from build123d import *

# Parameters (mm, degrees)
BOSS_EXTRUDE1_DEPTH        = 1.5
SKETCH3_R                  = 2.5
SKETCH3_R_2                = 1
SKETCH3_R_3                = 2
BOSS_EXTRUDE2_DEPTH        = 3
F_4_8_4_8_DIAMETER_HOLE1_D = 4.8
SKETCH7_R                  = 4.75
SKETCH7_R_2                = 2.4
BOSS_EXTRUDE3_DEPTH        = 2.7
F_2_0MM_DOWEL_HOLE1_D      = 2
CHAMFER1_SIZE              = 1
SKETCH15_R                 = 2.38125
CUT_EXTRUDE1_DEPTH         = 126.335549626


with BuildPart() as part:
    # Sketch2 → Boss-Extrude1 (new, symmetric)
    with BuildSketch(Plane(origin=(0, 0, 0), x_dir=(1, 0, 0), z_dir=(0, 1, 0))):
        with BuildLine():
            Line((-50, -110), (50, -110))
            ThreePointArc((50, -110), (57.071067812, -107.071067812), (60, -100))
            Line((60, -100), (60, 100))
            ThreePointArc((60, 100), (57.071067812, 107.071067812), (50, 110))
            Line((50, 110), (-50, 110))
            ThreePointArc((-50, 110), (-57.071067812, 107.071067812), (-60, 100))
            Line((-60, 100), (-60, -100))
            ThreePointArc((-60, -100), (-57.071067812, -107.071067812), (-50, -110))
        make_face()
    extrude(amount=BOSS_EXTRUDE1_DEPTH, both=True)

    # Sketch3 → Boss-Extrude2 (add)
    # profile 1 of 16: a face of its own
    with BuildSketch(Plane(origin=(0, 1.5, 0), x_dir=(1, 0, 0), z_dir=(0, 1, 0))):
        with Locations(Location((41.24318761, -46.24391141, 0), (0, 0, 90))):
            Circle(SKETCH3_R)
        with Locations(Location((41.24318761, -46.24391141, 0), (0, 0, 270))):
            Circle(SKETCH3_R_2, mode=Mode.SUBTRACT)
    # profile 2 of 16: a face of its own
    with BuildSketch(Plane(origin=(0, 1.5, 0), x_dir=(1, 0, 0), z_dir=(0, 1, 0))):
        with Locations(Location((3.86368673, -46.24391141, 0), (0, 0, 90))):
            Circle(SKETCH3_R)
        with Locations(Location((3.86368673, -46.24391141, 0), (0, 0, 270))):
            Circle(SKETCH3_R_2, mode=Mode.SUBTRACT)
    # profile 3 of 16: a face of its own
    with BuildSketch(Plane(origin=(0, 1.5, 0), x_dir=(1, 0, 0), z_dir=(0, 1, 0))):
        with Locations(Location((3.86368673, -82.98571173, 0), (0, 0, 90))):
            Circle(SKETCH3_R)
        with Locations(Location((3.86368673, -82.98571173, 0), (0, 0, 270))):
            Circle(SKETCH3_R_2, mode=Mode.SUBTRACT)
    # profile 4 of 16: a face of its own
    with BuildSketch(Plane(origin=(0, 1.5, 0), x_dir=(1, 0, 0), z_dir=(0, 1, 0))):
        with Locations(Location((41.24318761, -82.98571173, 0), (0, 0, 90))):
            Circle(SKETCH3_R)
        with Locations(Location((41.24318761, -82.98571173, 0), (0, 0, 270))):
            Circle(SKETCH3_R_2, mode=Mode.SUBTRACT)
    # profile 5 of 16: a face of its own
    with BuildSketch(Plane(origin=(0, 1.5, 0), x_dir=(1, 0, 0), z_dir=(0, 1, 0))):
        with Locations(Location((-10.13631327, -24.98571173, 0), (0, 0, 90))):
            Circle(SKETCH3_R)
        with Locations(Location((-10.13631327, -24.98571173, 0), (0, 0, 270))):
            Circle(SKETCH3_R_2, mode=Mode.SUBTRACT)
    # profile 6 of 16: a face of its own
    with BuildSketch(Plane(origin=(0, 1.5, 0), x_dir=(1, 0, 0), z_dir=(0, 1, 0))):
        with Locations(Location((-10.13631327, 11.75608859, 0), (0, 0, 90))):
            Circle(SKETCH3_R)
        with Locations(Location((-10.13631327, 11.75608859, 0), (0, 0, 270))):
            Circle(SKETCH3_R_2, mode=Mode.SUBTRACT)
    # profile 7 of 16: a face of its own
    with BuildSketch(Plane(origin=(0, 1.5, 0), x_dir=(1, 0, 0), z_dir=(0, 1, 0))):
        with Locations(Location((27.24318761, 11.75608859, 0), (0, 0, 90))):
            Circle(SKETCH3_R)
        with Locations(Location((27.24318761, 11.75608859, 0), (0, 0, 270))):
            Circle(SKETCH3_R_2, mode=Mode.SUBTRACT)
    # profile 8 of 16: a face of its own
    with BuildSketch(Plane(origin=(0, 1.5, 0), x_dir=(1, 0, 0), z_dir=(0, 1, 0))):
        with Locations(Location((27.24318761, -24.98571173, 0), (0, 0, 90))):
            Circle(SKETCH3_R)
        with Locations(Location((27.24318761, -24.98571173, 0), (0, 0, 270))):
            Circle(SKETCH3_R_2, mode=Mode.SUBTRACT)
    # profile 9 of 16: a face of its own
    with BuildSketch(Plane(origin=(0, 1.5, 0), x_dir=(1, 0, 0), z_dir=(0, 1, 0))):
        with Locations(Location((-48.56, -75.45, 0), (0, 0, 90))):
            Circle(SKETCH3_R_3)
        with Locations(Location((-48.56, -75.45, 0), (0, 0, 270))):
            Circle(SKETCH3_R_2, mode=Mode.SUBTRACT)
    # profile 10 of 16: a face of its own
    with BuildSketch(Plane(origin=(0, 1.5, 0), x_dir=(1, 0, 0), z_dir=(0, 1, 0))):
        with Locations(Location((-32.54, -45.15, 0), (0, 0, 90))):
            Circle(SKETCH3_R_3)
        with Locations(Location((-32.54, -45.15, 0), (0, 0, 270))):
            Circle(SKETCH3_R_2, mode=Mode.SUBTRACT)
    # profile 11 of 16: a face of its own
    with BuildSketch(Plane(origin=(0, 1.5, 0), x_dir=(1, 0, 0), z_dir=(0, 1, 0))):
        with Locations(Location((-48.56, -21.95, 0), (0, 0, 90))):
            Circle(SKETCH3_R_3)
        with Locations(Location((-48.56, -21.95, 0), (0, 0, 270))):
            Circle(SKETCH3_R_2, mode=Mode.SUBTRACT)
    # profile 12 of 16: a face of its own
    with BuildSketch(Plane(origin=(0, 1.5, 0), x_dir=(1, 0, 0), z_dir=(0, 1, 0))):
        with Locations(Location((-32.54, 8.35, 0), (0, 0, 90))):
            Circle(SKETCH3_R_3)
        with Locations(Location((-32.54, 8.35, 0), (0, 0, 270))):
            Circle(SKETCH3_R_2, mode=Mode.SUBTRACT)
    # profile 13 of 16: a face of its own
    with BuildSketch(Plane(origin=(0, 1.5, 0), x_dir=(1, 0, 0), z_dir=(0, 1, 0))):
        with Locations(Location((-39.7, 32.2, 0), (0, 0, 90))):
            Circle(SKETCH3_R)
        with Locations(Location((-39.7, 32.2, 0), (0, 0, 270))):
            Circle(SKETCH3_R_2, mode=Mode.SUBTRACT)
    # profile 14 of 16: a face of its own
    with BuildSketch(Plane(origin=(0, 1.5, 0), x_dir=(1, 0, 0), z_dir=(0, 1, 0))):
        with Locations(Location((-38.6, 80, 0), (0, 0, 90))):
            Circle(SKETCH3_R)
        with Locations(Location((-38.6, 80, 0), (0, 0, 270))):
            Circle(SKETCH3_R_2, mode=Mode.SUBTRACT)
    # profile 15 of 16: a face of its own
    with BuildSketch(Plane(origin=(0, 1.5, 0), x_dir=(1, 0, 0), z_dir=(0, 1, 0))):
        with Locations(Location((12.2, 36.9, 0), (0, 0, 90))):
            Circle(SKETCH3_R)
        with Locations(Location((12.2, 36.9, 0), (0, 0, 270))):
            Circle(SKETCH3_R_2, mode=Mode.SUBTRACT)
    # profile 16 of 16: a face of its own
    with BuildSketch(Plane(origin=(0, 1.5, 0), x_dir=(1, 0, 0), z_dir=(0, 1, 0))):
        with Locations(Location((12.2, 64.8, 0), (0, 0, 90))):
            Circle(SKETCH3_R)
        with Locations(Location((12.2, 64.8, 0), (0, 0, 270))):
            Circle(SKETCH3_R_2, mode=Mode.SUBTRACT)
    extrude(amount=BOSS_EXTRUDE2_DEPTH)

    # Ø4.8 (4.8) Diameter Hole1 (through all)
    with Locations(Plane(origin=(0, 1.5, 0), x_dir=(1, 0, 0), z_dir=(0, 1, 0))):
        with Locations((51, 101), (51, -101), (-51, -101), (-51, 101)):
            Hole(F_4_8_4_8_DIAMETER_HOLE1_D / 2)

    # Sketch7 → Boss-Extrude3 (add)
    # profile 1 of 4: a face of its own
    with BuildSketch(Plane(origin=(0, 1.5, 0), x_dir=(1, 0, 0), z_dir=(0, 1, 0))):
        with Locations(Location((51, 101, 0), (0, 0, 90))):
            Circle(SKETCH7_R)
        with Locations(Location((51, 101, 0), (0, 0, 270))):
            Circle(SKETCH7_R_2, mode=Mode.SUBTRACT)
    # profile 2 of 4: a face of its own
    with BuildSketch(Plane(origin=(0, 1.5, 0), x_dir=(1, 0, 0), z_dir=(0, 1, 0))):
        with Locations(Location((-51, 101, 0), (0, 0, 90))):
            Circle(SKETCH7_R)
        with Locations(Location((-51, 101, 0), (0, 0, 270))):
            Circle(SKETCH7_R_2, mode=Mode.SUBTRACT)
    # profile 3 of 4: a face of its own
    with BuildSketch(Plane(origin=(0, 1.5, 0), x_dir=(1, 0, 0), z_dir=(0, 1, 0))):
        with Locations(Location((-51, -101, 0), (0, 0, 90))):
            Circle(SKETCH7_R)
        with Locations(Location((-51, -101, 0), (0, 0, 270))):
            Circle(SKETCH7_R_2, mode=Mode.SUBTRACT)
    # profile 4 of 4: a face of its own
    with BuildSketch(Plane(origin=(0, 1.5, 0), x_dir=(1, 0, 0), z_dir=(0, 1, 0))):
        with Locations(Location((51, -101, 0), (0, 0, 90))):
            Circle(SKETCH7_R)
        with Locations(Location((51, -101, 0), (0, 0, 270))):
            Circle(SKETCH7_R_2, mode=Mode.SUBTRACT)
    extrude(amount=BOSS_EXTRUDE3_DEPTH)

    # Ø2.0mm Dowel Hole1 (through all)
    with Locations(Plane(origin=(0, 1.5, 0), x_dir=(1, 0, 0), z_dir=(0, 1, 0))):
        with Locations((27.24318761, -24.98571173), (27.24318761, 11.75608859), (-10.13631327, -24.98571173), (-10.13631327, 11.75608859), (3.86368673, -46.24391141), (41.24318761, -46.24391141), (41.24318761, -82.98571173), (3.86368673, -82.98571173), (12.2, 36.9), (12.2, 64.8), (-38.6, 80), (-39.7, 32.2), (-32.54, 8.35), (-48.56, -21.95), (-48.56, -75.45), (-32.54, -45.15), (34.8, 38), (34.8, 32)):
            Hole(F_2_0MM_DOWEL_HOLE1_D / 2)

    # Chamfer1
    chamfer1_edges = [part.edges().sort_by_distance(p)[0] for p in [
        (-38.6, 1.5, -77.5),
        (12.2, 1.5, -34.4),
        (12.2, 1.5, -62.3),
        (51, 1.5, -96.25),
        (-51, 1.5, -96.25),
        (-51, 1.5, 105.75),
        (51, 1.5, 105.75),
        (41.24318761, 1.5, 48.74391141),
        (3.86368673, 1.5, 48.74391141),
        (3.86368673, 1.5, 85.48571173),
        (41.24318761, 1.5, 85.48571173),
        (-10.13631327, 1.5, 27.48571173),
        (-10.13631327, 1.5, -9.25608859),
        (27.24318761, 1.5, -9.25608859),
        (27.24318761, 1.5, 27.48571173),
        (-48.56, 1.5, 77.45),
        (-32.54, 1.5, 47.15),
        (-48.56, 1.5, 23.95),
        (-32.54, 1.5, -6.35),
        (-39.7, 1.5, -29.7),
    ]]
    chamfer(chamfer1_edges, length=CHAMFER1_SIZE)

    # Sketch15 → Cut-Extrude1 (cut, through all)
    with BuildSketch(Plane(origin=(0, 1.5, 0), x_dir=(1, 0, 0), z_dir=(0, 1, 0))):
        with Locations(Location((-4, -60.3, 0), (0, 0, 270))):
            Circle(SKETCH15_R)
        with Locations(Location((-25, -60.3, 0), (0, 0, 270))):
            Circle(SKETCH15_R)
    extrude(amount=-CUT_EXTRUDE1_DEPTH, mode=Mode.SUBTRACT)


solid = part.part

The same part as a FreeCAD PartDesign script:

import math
import FreeCAD as App
import Part
import Sketcher
from FreeCAD import Vector
Q = App.Units.Quantity


def edges_at(feature, points):
    """Names of the edges that pass closest to the given points."""
    edges = feature.Shape.Edges
    near = lambda p: min(range(len(edges)), key=lambda i: edges[i].distToShape(Part.Vertex(*p))[0])
    return sorted({f"Edge{near(p) + 1}" for p in points})

doc = App.newDocument("Part")
body = doc.addObject("PartDesign::Body", "Body")

sketch1 = doc.addObject("Sketcher::SketchObject", "Sketch")
body.addObject(sketch1)
sketch1.AttachmentSupport = (doc.XZ_Plane, [""])
sketch1.MapMode = "FlatFace"
sketch1.addGeometry([
    Part.LineSegment(Vector(-50, 110, 0), Vector(50, 110, 0)),
    Part.ArcOfCircle(Part.Circle(Vector(50, 100, 0), Vector(0, 0, 1), 10), math.radians(0), math.radians(90)),
    Part.LineSegment(Vector(60, 100, 0), Vector(60, -100, 0)),
    Part.ArcOfCircle(Part.Circle(Vector(50, -100, 0), Vector(0, 0, 1), 10), math.radians(-90), math.radians(0)),
    Part.LineSegment(Vector(50, -110, 0), Vector(-50, -110, 0)),
    Part.ArcOfCircle(Part.Circle(Vector(-50, -100, 0), Vector(0, 0, 1), 10), math.radians(180), math.radians(270)),
    Part.LineSegment(Vector(-60, -100, 0), Vector(-60, 100, 0)),
    Part.ArcOfCircle(Part.Circle(Vector(-50, 100, 0), Vector(0, 0, 1), 10), math.radians(90), math.radians(180)),
], False)
sketch1.addConstraint([
    Sketcher.Constraint("Tangent", 0, 2, 1, 2),
    Sketcher.Constraint("Tangent", 1, 1, 2, 1),
    Sketcher.Constraint("Tangent", 2, 2, 3, 2),
    Sketcher.Constraint("Tangent", 3, 1, 4, 1),
    Sketcher.Constraint("Tangent", 4, 2, 5, 2),
    Sketcher.Constraint("Tangent", 5, 1, 6, 1),
    Sketcher.Constraint("Tangent", 6, 2, 7, 2),
    Sketcher.Constraint("Tangent", 7, 1, 0, 1),
    Sketcher.Constraint("Horizontal", 0),
    Sketcher.Constraint("Vertical", 2),
    Sketcher.Constraint("Horizontal", 4),
    Sketcher.Constraint("Vertical", 6),
    Sketcher.Constraint("Equal", 1, 3),
    Sketcher.Constraint("Equal", 3, 5),
    Sketcher.Constraint("Equal", 5, 7),
    Sketcher.Constraint("Symmetric", 1, 3, 5, 3, -1, 1),
    Sketcher.Constraint("Radius", 1, Q("10 mm")),
    Sketcher.Constraint("DistanceX", 0, 1, 0, 2, Q("100 mm")),
    Sketcher.Constraint("DistanceY", 2, 2, 2, 1, Q("200 mm")),
])
pad1 = doc.addObject("PartDesign::Pad", "Pad")
body.addObject(pad1)
pad1.Profile = sketch1
pad1.Length = 3
pad1.Midplane = True

sketch2 = doc.addObject("Sketcher::SketchObject", "Sketch001")
body.addObject(sketch2)
sketch2.AttachmentSupport = (doc.XZ_Plane, [""])
sketch2.MapMode = "FlatFace"
sketch2.AttachmentOffset = App.Placement(Vector(0, 0, -1.5), App.Rotation())
sketch2.addGeometry([
    Part.Circle(Vector(41.243188, 46.243911, 0), Vector(0, 0, 1), 2.5),
    Part.Circle(Vector(41.243188, 46.243911, 0), Vector(0, 0, 1), 1),
    Part.Circle(Vector(3.863687, 46.243911, 0), Vector(0, 0, 1), 2.5),
    Part.Circle(Vector(3.863687, 46.243911, 0), Vector(0, 0, 1), 1),
    Part.Circle(Vector(3.863687, 82.985712, 0), Vector(0, 0, 1), 2.5),
    Part.Circle(Vector(3.863687, 82.985712, 0), Vector(0, 0, 1), 1),
    Part.Circle(Vector(41.243188, 82.985712, 0), Vector(0, 0, 1), 2.5),
    Part.Circle(Vector(41.243188, 82.985712, 0), Vector(0, 0, 1), 1),
    Part.Circle(Vector(-10.136313, 24.985712, 0), Vector(0, 0, 1), 2.5),
    Part.Circle(Vector(-10.136313, 24.985712, 0), Vector(0, 0, 1), 1),
    Part.Circle(Vector(-10.136313, -11.756089, 0), Vector(0, 0, 1), 2.5),
    Part.Circle(Vector(-10.136313, -11.756089, 0), Vector(0, 0, 1), 1),
    Part.Circle(Vector(27.243188, -11.756089, 0), Vector(0, 0, 1), 2.5),
    Part.Circle(Vector(27.243188, -11.756089, 0), Vector(0, 0, 1), 1),
    Part.Circle(Vector(27.243188, 24.985712, 0), Vector(0, 0, 1), 2.5),
    Part.Circle(Vector(27.243188, 24.985712, 0), Vector(0, 0, 1), 1),
    Part.Circle(Vector(-48.56, 75.45, 0), Vector(0, 0, 1), 2),
    Part.Circle(Vector(-48.56, 75.45, 0), Vector(0, 0, 1), 1),
    Part.Circle(Vector(-32.54, 45.15, 0), Vector(0, 0, 1), 2),
    Part.Circle(Vector(-32.54, 45.15, 0), Vector(0, 0, 1), 1),
    Part.Circle(Vector(-48.56, 21.95, 0), Vector(0, 0, 1), 2),
    Part.Circle(Vector(-48.56, 21.95, 0), Vector(0, 0, 1), 1),
    Part.Circle(Vector(-32.54, -8.35, 0), Vector(0, 0, 1), 2),
    Part.Circle(Vector(-32.54, -8.35, 0), Vector(0, 0, 1), 1),
    Part.Circle(Vector(-39.7, -32.2, 0), Vector(0, 0, 1), 2.5),
    Part.Circle(Vector(-39.7, -32.2, 0), Vector(0, 0, 1), 1),
    Part.Circle(Vector(-38.6, -80, 0), Vector(0, 0, 1), 2.5),
    Part.Circle(Vector(-38.6, -80, 0), Vector(0, 0, 1), 1),
    Part.Circle(Vector(12.2, -36.9, 0), Vector(0, 0, 1), 2.5),
    Part.Circle(Vector(12.2, -36.9, 0), Vector(0, 0, 1), 1),
    Part.Circle(Vector(12.2, -64.8, 0), Vector(0, 0, 1), 2.5),
    Part.Circle(Vector(12.2, -64.8, 0), Vector(0, 0, 1), 1),
], False)
sketch2.addConstraint([
    Sketcher.Constraint("Coincident", 1, 3, 0, 3),
    Sketcher.Constraint("Coincident", 3, 3, 2, 3),
    Sketcher.Constraint("Coincident", 5, 3, 4, 3),
    Sketcher.Constraint("Coincident", 7, 3, 6, 3),
    Sketcher.Constraint("Coincident", 9, 3, 8, 3),
    Sketcher.Constraint("Coincident", 11, 3, 10, 3),
    Sketcher.Constraint("Coincident", 13, 3, 12, 3),
    Sketcher.Constraint("Coincident", 15, 3, 14, 3),
    Sketcher.Constraint("Coincident", 17, 3, 16, 3),
    Sketcher.Constraint("Coincident", 19, 3, 18, 3),
    Sketcher.Constraint("Coincident", 21, 3, 20, 3),
    Sketcher.Constraint("Coincident", 23, 3, 22, 3),
    Sketcher.Constraint("Coincident", 25, 3, 24, 3),
    Sketcher.Constraint("Coincident", 27, 3, 26, 3),
    Sketcher.Constraint("Coincident", 29, 3, 28, 3),
    Sketcher.Constraint("Coincident", 31, 3, 30, 3),
    Sketcher.Constraint("Equal", 0, 2),
    Sketcher.Constraint("Equal", 1, 3),
    Sketcher.Constraint("Equal", 2, 4),
    Sketcher.Constraint("Equal", 3, 5),
    Sketcher.Constraint("Equal", 4, 6),
    Sketcher.Constraint("Equal", 5, 7),
    Sketcher.Constraint("Equal", 6, 8),
    Sketcher.Constraint("Equal", 7, 9),
    Sketcher.Constraint("Equal", 8, 10),
    Sketcher.Constraint("Equal", 9, 11),
    Sketcher.Constraint("Equal", 10, 12),
    Sketcher.Constraint("Equal", 11, 13),
    Sketcher.Constraint("Equal", 12, 14),
    Sketcher.Constraint("Equal", 13, 15),
    Sketcher.Constraint("Equal", 15, 17),
    Sketcher.Constraint("Equal", 16, 18),
    Sketcher.Constraint("Equal", 17, 19),
    Sketcher.Constraint("Equal", 18, 20),
    Sketcher.Constraint("Equal", 19, 21),
    Sketcher.Constraint("Equal", 20, 22),
    Sketcher.Constraint("Equal", 21, 23),
    Sketcher.Constraint("Equal", 14, 24),
    Sketcher.Constraint("Equal", 23, 25),
    Sketcher.Constraint("Equal", 24, 26),
    Sketcher.Constraint("Equal", 25, 27),
    Sketcher.Constraint("Equal", 26, 28),
    Sketcher.Constraint("Equal", 27, 29),
    Sketcher.Constraint("Equal", 28, 30),
    Sketcher.Constraint("Equal", 29, 31),
    Sketcher.Constraint("Horizontal", 1, 3, 2, 3),
    Sketcher.Constraint("Horizontal", 5, 3, 6, 3),
    Sketcher.Constraint("Horizontal", 11, 3, 12, 3),
    Sketcher.Constraint("Horizontal", 9, 3, 14, 3),
    Sketcher.Constraint("Vertical", 3, 3, 4, 3),
    Sketcher.Constraint("Vertical", 1, 3, 6, 3),
    Sketcher.Constraint("Vertical", 9, 3, 10, 3),
    Sketcher.Constraint("Vertical", 13, 3, 14, 3),
    Sketcher.Constraint("Vertical", 17, 3, 20, 3),
    Sketcher.Constraint("Vertical", 19, 3, 22, 3),
    Sketcher.Constraint("Vertical", 29, 3, 30, 3),
    Sketcher.Constraint("Diameter", 0, Q("5 mm")),
    Sketcher.Constraint("Diameter", 1, Q("2 mm")),
    Sketcher.Constraint("Diameter", 16, Q("4 mm")),
    Sketcher.Constraint("DistanceY", 26, 3, -1, 1, Q("80 mm")),
    Sketcher.Constraint("DistanceX", 8, 3, 2, 3, Q("14 mm")),
    Sketcher.Constraint("DistanceY", 8, 3, 4, 3, Q("58 mm")),
    Sketcher.Constraint("DistanceY", 10, 3, 2, 3, Q("58 mm")),
    Sketcher.Constraint("DistanceX", 12, 3, 0, 3, Q("14 mm")),
    Sketcher.Constraint("DistanceX", 24, 3, -1, 1, Q("39.7 mm")),
    Sketcher.Constraint("DistanceY", 24, 3, -1, 1, Q("32.2 mm")),
    Sketcher.Constraint("DistanceX", 26, 3, -1, 1, Q("38.6 mm")),
    Sketcher.Constraint("DistanceX", -1, 1, 28, 3, Q("12.2 mm")),
    Sketcher.Constraint("DistanceY", 28, 3, -1, 1, Q("36.9 mm")),
    Sketcher.Constraint("DistanceY", 30, 3, -1, 1, Q("64.8 mm")),
    Sketcher.Constraint("DistanceY", 18, 3, 16, 3, Q("30.3 mm")),
    Sketcher.Constraint("DistanceY", 20, 3, 18, 3, Q("23.2 mm")),
    Sketcher.Constraint("DistanceY", 22, 3, 20, 3, Q("30.3 mm")),
    Sketcher.Constraint("DistanceX", 16, 3, -1, 1, Q("48.56 mm")),
    Sketcher.Constraint("DistanceY", -1, 1, 16, 3, Q("75.45 mm")),
    Sketcher.Constraint("DistanceX", 18, 3, -1, 1, Q("32.54 mm")),
    Sketcher.Constraint("DistanceX", 2, 3, 0, 3, Q("37.379501 mm")),
    Sketcher.Constraint("DistanceY", 2, 3, 4, 3, Q("36.7418 mm")),
    Sketcher.Constraint("DistanceY", -1, 1, 0, 3, Q("46.243911 mm")),
    Sketcher.Constraint("DistanceX", -1, 1, 0, 3, Q("41.243188 mm")),
])
pad2 = doc.addObject("PartDesign::Pad", "Pad001")
body.addObject(pad2)
pad2.Profile = sketch2
pad2.Length = 3
pad2.Reversed = True

sketch3 = doc.addObject("Sketcher::SketchObject", "Sketch002")
body.addObject(sketch3)
sketch3.AttachmentSupport = (doc.XZ_Plane, [""])
sketch3.MapMode = "FlatFace"
sketch3.AttachmentOffset = App.Placement(Vector(0, 0, -1.5), App.Rotation())
sketch3.addGeometry([
    Part.Circle(Vector(51, -101, 0), Vector(0, 0, 1), 2.4),
    Part.Circle(Vector(51, 101, 0), Vector(0, 0, 1), 2.4),
    Part.Circle(Vector(-51, 101, 0), Vector(0, 0, 1), 2.4),
    Part.Circle(Vector(-51, -101, 0), Vector(0, 0, 1), 2.4),
], False)
sketch3.addConstraint([
    Sketcher.Constraint("Equal", 0, 1),
    Sketcher.Constraint("Equal", 1, 2),
    Sketcher.Constraint("Equal", 2, 3),
    Sketcher.Constraint("Symmetric", 0, 3, 2, 3, -1, 1),
    Sketcher.Constraint("Symmetric", 1, 3, 3, 3, -1, 1),
    Sketcher.Constraint("Symmetric", 1, 3, 2, 3, -2),
    Sketcher.Constraint("Diameter", 0, Q("4.8 mm")),
    Sketcher.Constraint("DistanceX", -1, 1, 0, 3, Q("51 mm")),
    Sketcher.Constraint("DistanceY", 0, 3, -1, 1, Q("101 mm")),
])
doc.recompute()
hole = doc.addObject("PartDesign::Hole", "Hole")
body.addObject(hole)
hole.Profile = sketch3
hole.ThreadType = "None"
hole.Diameter = 4.8
hole.DepthType = "ThroughAll"
hole.Reversed = True

sketch4 = doc.addObject("Sketcher::SketchObject", "Sketch003")
body.addObject(sketch4)
sketch4.AttachmentSupport = (doc.XZ_Plane, [""])
sketch4.MapMode = "FlatFace"
sketch4.AttachmentOffset = App.Placement(Vector(0, 0, -1.5), App.Rotation())
sketch4.addGeometry([
    Part.Circle(Vector(51, -101, 0), Vector(0, 0, 1), 4.75),
    Part.Circle(Vector(51, -101, 0), Vector(0, 0, 1), 2.4),
    Part.Circle(Vector(-51, -101, 0), Vector(0, 0, 1), 4.75),
    Part.Circle(Vector(-51, -101, 0), Vector(0, 0, 1), 2.4),
    Part.Circle(Vector(-51, 101, 0), Vector(0, 0, 1), 4.75),
    Part.Circle(Vector(-51, 101, 0), Vector(0, 0, 1), 2.4),
    Part.Circle(Vector(51, 101, 0), Vector(0, 0, 1), 4.75),
    Part.Circle(Vector(51, 101, 0), Vector(0, 0, 1), 2.4),
], False)
sketch4.addConstraint([
    Sketcher.Constraint("Coincident", 1, 3, 0, 3),
    Sketcher.Constraint("Coincident", 3, 3, 2, 3),
    Sketcher.Constraint("Coincident", 5, 3, 4, 3),
    Sketcher.Constraint("Coincident", 7, 3, 6, 3),
    Sketcher.Constraint("Equal", 0, 2),
    Sketcher.Constraint("Equal", 1, 3),
    Sketcher.Constraint("Equal", 2, 4),
    Sketcher.Constraint("Equal", 3, 5),
    Sketcher.Constraint("Equal", 4, 6),
    Sketcher.Constraint("Equal", 5, 7),
    Sketcher.Constraint("Symmetric", 0, 3, 4, 3, -1, 1),
    Sketcher.Constraint("Symmetric", 2, 3, 6, 3, -1, 1),
    Sketcher.Constraint("Symmetric", 0, 3, 2, 3, -2),
    Sketcher.Constraint("Diameter", 0, Q("9.5 mm")),
    Sketcher.Constraint("Diameter", 1, Q("4.8 mm")),
    Sketcher.Constraint("DistanceX", -1, 1, 0, 3, Q("51 mm")),
    Sketcher.Constraint("DistanceY", 0, 3, -1, 1, Q("101 mm")),
])
pad3 = doc.addObject("PartDesign::Pad", "Pad002")
body.addObject(pad3)
pad3.Profile = sketch4
pad3.Length = 2.7
pad3.Reversed = True

sketch5 = doc.addObject("Sketcher::SketchObject", "Sketch004")
body.addObject(sketch5)
sketch5.AttachmentSupport = (doc.XZ_Plane, [""])
sketch5.MapMode = "FlatFace"
sketch5.AttachmentOffset = App.Placement(Vector(0, 0, -1.5), App.Rotation())
sketch5.addGeometry([
    Part.Circle(Vector(27.243188, 24.985712, 0), Vector(0, 0, 1), 1),
    Part.Circle(Vector(27.243188, -11.756089, 0), Vector(0, 0, 1), 1),
    Part.Circle(Vector(-10.136313, 24.985712, 0), Vector(0, 0, 1), 1),
    Part.Circle(Vector(-10.136313, -11.756089, 0), Vector(0, 0, 1), 1),
    Part.Circle(Vector(3.863687, 46.243911, 0), Vector(0, 0, 1), 1),
    Part.Circle(Vector(41.243188, 46.243911, 0), Vector(0, 0, 1), 1),
    Part.Circle(Vector(41.243188, 82.985712, 0), Vector(0, 0, 1), 1),
    Part.Circle(Vector(3.863687, 82.985712, 0), Vector(0, 0, 1), 1),
    Part.Circle(Vector(12.2, -36.9, 0), Vector(0, 0, 1), 1),
    Part.Circle(Vector(12.2, -64.8, 0), Vector(0, 0, 1), 1),
    Part.Circle(Vector(-38.6, -80, 0), Vector(0, 0, 1), 1),
    Part.Circle(Vector(-39.7, -32.2, 0), Vector(0, 0, 1), 1),
    Part.Circle(Vector(-32.54, -8.35, 0), Vector(0, 0, 1), 1),
    Part.Circle(Vector(-48.56, 21.95, 0), Vector(0, 0, 1), 1),
    Part.Circle(Vector(-48.56, 75.45, 0), Vector(0, 0, 1), 1),
    Part.Circle(Vector(-32.54, 45.15, 0), Vector(0, 0, 1), 1),
    Part.Circle(Vector(34.8, -38, 0), Vector(0, 0, 1), 1),
    Part.Circle(Vector(34.8, -32, 0), Vector(0, 0, 1), 1),
], False)
sketch5.addConstraint([
    Sketcher.Constraint("Equal", 0, 1),
    Sketcher.Constraint("Equal", 1, 2),
    Sketcher.Constraint("Equal", 2, 3),
    Sketcher.Constraint("Equal", 3, 4),
    Sketcher.Constraint("Equal", 4, 5),
    Sketcher.Constraint("Equal", 5, 6),
    Sketcher.Constraint("Equal", 6, 7),
    Sketcher.Constraint("Equal", 7, 8),
    Sketcher.Constraint("Equal", 8, 9),
    Sketcher.Constraint("Equal", 9, 10),
    Sketcher.Constraint("Equal", 10, 11),
    Sketcher.Constraint("Equal", 11, 12),
    Sketcher.Constraint("Equal", 12, 13),
    Sketcher.Constraint("Equal", 13, 14),
    Sketcher.Constraint("Equal", 14, 15),
    Sketcher.Constraint("Equal", 15, 16),
    Sketcher.Constraint("Equal", 16, 17),
    Sketcher.Constraint("Horizontal", 0, 3, 2, 3),
    Sketcher.Constraint("Horizontal", 1, 3, 3, 3),
    Sketcher.Constraint("Horizontal", 4, 3, 5, 3),
    Sketcher.Constraint("Horizontal", 6, 3, 7, 3),
    Sketcher.Constraint("Vertical", 0, 3, 1, 3),
    Sketcher.Constraint("Vertical", 2, 3, 3, 3),
    Sketcher.Constraint("Vertical", 5, 3, 6, 3),
    Sketcher.Constraint("Vertical", 4, 3, 7, 3),
    Sketcher.Constraint("Vertical", 8, 3, 9, 3),
    Sketcher.Constraint("Vertical", 13, 3, 14, 3),
    Sketcher.Constraint("Vertical", 12, 3, 15, 3),
    Sketcher.Constraint("Vertical", 16, 3, 17, 3),
    Sketcher.Constraint("Diameter", 0, Q("2 mm")),
    Sketcher.Constraint("DistanceY", 10, 3, -1, 1, Q("80 mm")),
    Sketcher.Constraint("DistanceY", 16, 3, -1, 1, Q("38 mm")),
    Sketcher.Constraint("DistanceY", 17, 3, -1, 1, Q("32 mm")),
    Sketcher.Constraint("DistanceX", 2, 3, 4, 3, Q("14 mm")),
    Sketcher.Constraint("DistanceY", 3, 3, 4, 3, Q("58 mm")),
    Sketcher.Constraint("DistanceX", 0, 3, 5, 3, Q("14 mm")),
    Sketcher.Constraint("DistanceY", 0, 3, 6, 3, Q("58 mm")),
    Sketcher.Constraint("DistanceX", -1, 1, 8, 3, Q("12.2 mm")),
    Sketcher.Constraint("DistanceY", 8, 3, -1, 1, Q("36.9 mm")),
    Sketcher.Constraint("DistanceY", 9, 3, -1, 1, Q("64.8 mm")),
    Sketcher.Constraint("DistanceX", 10, 3, -1, 1, Q("38.6 mm")),
    Sketcher.Constraint("DistanceX", 11, 3, -1, 1, Q("39.7 mm")),
    Sketcher.Constraint("DistanceY", 11, 3, -1, 1, Q("32.2 mm")),
    Sketcher.Constraint("DistanceX", -1, 1, 16, 3, Q("34.8 mm")),
    Sketcher.Constraint("DistanceY", 12, 3, 13, 3, Q("30.3 mm")),
    Sketcher.Constraint("DistanceY", 13, 3, 14, 3, Q("53.5 mm")),
    Sketcher.Constraint("DistanceY", 13, 3, 15, 3, Q("23.2 mm")),
    Sketcher.Constraint("DistanceX", 12, 3, -1, 1, Q("32.54 mm")),
    Sketcher.Constraint("DistanceY", 12, 3, -1, 1, Q("8.35 mm")),
    Sketcher.Constraint("DistanceX", 13, 3, -1, 1, Q("48.56 mm")),
    Sketcher.Constraint("DistanceY", 1, 3, 0, 3, Q("36.7418 mm")),
    Sketcher.Constraint("DistanceX", 2, 3, 0, 3, Q("37.379501 mm")),
    Sketcher.Constraint("DistanceY", -1, 1, 0, 3, Q("24.985712 mm")),
    Sketcher.Constraint("DistanceX", -1, 1, 0, 3, Q("27.243188 mm")),
])
doc.recompute()
hole2 = doc.addObject("PartDesign::Hole", "Hole001")
body.addObject(hole2)
hole2.Profile = sketch5
hole2.ThreadType = "None"
hole2.Diameter = 2
hole2.DepthType = "ThroughAll"
hole2.Reversed = True
doc.recompute()

chamfer = doc.addObject("PartDesign::Chamfer", "Chamfer")
body.addObject(chamfer)
chamfer.Base = (hole2, edges_at(hole2, [
    (-38.6, 1.5, -77.5),
    (12.2, 1.5, -34.4),
    (12.2, 1.5, -62.3),
    (51, 1.5, -96.25),
    (-51, 1.5, -96.25),
    (-51, 1.5, 105.75),
    (51, 1.5, 105.75),
    (41.243, 1.5, 48.744),
    (3.864, 1.5, 48.744),
    (3.864, 1.5, 85.486),
    (41.243, 1.5, 85.486),
    (-10.136, 1.5, 27.486),
    (-10.136, 1.5, -9.256),
    (27.243, 1.5, -9.256),
    (27.243, 1.5, 27.486),
    (-48.56, 1.5, 77.45),
    (-32.54, 1.5, 47.15),
    (-48.56, 1.5, 23.95),
    (-32.54, 1.5, -6.35),
    (-39.7, 1.5, -29.7),
]))
chamfer.Size = 1

sketch6 = doc.addObject("Sketcher::SketchObject", "Sketch005")
body.addObject(sketch6)
sketch6.AttachmentSupport = (doc.XZ_Plane, [""])
sketch6.MapMode = "FlatFace"
sketch6.AttachmentOffset = App.Placement(Vector(0, 0, -1.5), App.Rotation())
sketch6.addGeometry([
    Part.Circle(Vector(-4, 60.3, 0), Vector(0, 0, 1), 2.38125),
    Part.Circle(Vector(-25, 60.3, 0), Vector(0, 0, 1), 2.38125),
], False)
sketch6.addConstraint([
    Sketcher.Constraint("Equal", 0, 1),
    Sketcher.Constraint("Horizontal", 0, 3, 1, 3),
    Sketcher.Constraint("DistanceX", 0, 3, -1, 1, Q("4 mm")),
    Sketcher.Constraint("DistanceX", 1, 3, -1, 1, Q("25 mm")),
    Sketcher.Constraint("Diameter", 0, Q("4.7625 mm")),
    Sketcher.Constraint("DistanceY", -1, 1, 0, 3, Q("60.3 mm")),
])
pocket1 = doc.addObject("PartDesign::Pocket", "Pocket")
body.addObject(pocket1)
pocket1.Profile = sketch6
pocket1.Type = "ThroughAll"
pocket1.Reversed = True

doc.recompute()
